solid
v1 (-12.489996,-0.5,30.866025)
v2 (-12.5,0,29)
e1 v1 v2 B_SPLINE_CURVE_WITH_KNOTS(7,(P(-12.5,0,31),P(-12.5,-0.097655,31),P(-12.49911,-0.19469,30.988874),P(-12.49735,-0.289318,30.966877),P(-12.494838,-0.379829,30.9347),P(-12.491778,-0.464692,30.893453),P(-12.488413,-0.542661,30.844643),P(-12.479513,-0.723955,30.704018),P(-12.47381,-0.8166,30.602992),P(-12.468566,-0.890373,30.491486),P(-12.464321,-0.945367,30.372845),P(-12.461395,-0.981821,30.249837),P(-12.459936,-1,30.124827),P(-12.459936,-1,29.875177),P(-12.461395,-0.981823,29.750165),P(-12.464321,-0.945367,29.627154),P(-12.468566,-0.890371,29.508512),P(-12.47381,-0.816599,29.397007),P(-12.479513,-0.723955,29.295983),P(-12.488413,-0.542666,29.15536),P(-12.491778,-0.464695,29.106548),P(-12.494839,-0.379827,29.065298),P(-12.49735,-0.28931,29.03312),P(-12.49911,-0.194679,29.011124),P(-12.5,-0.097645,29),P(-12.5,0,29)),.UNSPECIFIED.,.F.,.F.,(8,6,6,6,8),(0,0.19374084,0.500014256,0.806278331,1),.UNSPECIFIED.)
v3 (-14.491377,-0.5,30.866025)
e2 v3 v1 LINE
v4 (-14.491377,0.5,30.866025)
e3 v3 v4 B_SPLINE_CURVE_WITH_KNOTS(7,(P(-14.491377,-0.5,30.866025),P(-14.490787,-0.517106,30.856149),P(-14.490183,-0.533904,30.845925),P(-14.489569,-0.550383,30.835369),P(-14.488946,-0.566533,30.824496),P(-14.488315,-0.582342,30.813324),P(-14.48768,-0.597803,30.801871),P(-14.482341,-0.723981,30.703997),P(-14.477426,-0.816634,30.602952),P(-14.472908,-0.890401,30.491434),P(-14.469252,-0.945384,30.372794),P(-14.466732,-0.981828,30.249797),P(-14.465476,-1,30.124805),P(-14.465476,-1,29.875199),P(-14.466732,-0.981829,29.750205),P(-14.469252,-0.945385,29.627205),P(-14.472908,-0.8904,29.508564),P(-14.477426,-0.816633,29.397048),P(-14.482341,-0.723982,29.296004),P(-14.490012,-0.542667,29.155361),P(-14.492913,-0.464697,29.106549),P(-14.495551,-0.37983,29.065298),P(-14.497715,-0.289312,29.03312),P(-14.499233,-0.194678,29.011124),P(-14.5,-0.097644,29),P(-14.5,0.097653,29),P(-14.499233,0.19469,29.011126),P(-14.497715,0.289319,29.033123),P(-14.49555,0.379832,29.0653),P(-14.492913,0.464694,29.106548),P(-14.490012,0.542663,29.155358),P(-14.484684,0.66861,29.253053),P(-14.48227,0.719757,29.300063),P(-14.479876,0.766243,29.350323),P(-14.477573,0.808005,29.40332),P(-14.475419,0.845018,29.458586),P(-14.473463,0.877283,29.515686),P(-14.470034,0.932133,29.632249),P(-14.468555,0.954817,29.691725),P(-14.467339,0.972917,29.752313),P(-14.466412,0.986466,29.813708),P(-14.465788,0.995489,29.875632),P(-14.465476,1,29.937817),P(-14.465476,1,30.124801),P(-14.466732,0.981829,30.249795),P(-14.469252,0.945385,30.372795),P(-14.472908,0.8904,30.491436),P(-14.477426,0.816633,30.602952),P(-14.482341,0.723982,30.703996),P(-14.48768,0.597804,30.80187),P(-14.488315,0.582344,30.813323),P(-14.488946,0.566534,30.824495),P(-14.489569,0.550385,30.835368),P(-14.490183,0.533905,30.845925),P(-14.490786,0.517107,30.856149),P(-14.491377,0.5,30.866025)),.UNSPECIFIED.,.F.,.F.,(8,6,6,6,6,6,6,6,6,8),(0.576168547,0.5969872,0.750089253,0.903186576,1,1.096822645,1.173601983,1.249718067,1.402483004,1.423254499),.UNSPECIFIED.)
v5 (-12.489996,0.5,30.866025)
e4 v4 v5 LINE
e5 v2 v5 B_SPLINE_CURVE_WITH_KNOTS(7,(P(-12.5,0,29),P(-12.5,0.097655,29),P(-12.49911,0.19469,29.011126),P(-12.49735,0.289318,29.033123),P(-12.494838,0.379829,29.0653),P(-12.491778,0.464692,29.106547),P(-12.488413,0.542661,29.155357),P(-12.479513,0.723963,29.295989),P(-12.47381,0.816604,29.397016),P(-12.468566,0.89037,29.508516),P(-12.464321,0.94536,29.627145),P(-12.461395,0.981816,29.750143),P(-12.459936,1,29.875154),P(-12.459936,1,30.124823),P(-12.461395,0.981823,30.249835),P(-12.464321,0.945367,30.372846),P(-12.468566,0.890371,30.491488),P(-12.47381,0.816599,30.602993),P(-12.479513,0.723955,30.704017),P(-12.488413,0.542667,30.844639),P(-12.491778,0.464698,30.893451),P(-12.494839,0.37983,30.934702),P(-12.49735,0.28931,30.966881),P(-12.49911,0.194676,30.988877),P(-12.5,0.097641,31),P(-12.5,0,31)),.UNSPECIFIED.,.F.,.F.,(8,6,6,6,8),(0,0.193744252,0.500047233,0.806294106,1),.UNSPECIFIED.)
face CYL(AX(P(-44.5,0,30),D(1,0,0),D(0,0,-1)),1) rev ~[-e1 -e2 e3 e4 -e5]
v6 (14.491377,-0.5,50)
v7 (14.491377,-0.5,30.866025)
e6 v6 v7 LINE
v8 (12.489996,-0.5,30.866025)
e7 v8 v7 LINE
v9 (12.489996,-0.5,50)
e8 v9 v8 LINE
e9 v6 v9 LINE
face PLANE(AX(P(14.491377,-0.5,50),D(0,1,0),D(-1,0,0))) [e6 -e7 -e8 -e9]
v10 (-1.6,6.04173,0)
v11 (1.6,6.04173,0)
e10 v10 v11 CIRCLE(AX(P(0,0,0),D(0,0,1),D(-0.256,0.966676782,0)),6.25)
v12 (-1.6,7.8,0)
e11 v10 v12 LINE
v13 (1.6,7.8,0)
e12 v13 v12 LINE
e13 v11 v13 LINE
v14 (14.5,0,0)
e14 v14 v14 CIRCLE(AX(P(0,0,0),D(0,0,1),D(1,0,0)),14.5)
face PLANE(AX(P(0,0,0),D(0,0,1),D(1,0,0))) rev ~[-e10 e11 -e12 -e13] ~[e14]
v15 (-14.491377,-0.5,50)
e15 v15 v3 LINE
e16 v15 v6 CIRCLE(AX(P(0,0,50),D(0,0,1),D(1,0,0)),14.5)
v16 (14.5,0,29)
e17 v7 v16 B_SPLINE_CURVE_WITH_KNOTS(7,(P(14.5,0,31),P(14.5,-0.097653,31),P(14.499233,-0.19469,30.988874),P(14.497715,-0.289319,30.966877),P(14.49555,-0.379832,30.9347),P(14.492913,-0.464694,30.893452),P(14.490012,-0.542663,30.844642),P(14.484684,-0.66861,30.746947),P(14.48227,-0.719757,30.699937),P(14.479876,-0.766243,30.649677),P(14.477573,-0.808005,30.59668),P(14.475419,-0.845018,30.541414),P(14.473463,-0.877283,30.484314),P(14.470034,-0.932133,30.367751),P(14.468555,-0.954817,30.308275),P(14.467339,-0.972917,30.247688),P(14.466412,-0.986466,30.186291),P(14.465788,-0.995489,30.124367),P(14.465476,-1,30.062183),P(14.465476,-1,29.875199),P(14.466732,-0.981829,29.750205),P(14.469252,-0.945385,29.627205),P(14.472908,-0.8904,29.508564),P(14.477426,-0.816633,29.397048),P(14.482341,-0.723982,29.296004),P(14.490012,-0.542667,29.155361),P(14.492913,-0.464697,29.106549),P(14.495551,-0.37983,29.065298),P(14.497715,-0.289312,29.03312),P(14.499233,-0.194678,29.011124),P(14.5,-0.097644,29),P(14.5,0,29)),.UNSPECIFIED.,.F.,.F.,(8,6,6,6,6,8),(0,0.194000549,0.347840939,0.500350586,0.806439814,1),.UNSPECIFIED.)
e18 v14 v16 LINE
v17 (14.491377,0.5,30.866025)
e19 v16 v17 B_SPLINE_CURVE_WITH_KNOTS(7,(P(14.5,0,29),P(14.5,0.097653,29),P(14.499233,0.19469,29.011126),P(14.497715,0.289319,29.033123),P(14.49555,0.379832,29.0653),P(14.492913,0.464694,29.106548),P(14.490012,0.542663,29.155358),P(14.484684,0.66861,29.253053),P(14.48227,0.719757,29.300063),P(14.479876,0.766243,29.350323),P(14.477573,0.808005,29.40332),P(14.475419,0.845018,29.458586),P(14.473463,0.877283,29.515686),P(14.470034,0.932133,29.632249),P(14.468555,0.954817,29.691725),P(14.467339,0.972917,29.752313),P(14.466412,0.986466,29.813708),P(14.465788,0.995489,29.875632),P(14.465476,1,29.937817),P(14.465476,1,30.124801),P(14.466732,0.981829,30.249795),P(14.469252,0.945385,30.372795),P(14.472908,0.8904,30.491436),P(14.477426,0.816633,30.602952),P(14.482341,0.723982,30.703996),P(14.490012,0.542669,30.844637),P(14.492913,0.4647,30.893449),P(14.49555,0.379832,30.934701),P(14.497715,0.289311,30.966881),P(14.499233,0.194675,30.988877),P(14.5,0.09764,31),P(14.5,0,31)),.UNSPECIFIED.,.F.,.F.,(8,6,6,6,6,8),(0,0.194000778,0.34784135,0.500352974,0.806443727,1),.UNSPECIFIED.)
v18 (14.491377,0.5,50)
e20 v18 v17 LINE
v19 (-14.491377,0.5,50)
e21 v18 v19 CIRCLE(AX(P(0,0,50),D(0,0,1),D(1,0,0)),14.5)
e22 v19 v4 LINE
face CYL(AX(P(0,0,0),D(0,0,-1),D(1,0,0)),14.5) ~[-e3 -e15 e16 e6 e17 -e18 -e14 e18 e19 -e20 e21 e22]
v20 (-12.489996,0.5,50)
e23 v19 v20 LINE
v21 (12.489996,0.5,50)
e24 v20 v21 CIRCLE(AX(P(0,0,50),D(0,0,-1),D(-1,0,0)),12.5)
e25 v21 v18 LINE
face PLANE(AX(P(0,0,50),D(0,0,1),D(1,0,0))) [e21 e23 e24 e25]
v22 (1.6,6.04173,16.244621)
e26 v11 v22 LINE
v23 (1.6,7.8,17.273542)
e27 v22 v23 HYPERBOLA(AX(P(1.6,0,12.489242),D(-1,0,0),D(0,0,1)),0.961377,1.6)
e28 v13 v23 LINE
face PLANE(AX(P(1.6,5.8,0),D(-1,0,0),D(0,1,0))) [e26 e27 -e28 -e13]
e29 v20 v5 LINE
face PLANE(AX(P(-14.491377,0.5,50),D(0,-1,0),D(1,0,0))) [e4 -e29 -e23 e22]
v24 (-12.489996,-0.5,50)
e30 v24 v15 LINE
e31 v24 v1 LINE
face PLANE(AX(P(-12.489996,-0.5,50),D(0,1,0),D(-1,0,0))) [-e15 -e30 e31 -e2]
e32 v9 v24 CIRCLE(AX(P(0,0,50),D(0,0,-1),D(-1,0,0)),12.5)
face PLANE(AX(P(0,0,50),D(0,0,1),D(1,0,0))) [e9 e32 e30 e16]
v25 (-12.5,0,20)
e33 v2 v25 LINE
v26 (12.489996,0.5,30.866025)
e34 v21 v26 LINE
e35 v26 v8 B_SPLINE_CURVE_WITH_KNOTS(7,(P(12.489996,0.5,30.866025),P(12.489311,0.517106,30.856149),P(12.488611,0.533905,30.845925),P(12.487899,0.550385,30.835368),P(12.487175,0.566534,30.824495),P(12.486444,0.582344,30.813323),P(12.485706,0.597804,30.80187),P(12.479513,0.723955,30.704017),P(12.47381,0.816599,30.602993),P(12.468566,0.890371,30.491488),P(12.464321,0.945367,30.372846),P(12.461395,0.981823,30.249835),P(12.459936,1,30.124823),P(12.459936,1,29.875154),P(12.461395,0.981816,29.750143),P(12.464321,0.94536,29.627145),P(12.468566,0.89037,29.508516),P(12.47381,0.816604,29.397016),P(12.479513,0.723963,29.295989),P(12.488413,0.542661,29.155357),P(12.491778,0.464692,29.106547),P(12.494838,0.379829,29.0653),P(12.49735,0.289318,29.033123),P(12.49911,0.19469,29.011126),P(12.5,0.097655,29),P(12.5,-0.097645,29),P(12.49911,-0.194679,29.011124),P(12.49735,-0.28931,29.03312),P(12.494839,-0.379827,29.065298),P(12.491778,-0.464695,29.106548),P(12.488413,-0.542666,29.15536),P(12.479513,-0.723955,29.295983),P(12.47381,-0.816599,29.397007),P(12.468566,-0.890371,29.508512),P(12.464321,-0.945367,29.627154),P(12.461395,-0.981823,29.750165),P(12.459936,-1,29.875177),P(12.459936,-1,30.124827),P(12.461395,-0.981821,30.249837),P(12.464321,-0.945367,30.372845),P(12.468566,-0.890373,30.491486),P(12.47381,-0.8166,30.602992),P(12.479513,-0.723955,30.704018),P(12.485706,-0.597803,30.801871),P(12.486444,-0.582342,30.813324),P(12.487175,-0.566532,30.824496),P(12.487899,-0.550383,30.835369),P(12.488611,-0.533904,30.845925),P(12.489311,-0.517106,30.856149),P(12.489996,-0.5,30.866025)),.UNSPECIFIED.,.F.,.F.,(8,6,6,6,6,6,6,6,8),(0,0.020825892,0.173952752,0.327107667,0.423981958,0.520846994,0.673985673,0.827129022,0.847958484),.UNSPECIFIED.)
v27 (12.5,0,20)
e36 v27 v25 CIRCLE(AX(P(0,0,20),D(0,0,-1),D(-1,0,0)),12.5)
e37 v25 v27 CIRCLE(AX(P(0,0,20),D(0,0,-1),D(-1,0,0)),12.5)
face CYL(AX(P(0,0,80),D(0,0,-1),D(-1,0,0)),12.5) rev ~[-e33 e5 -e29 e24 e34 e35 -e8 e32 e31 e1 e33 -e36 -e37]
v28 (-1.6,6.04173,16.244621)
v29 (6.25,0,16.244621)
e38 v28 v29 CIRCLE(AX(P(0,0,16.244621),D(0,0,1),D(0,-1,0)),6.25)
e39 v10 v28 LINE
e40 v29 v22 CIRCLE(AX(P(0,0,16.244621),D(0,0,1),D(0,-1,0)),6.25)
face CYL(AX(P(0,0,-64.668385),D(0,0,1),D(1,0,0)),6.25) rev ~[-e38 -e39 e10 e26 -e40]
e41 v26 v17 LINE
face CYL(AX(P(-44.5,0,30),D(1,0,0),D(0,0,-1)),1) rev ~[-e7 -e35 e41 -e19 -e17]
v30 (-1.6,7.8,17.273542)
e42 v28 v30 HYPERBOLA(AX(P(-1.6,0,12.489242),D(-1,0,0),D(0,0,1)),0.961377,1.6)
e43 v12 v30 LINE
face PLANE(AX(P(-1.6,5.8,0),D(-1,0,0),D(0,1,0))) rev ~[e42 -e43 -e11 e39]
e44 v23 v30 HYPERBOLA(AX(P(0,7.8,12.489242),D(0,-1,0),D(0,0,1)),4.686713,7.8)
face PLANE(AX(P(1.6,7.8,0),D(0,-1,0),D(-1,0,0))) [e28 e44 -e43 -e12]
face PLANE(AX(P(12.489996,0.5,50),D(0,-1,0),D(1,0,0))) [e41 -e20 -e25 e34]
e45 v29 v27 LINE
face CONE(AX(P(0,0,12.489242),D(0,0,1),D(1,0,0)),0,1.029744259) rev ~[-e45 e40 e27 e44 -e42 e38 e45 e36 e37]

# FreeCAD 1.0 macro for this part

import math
import FreeCAD as App
import Part
import Sketcher
from FreeCAD import Vector
Q = App.Units.Quantity


def add_polygon(sketch, points):
    """Adds a closed chain of lines whose ends are joined by coincident constraints."""
    first, n = sketch.GeometryCount, len(points)
    for a, b in zip(points, points[1:] + points[:1]):
        sketch.addGeometry(Part.LineSegment(App.Vector(*a, 0), App.Vector(*b, 0)), False)
    for i in range(n):
        sketch.addConstraint(Sketcher.Constraint("Coincident", first + i, 2, first + (i + 1) % n, 1))

doc = App.newDocument("Part")
params = doc.addObject("Spreadsheet::Sheet", "Params")
for row, (alias, value) in enumerate([
    ("sketch1_diameter", "29 mm"),
    ("pad1_length", "50 mm"),
    ("sketch2_height", "2 mm"),
    ("sketch2_width", "3.2 mm"),
    ("pocket1_length", "25 mm"),
    ("sketch3_diameter", "12.5 mm"),
    ("hole_diameter", "12.5 mm"),
    ("sketch4_diameter", "25 mm"),
    ("hole2_diameter", "25 mm"),
    ("hole2_depth", "30 mm"),
    ("sketch5_radius", "14.5 mm"),
    ("sketch5_radius2", "12.5 mm"),
    ("pocket2_length", "20 mm"),
    ("sketch6_diameter", "2 mm"),
    ("hole3_diameter", "2 mm"),
    ("hole3_depth", "30 mm"),
], start=1):
    params.set(f"A{row}", alias)
    params.set(f"B{row}", "=" + value)
    params.setAlias(f"B{row}", alias)

body = doc.addObject("PartDesign::Body", "Body")

# Sketch on XY plane
sketch1 = body.newObject("Sketcher::SketchObject", "Sketch")
sketch1.AttachmentSupport = (doc.getObject("XY_Plane"), [""])
sketch1.MapMode = "FlatFace"
sketch1.addGeometry(Part.Circle(Vector(0, 0, 0), Vector(0, 0, 1), 14), False)
sketch1.addConstraint(Sketcher.Constraint("Coincident", 0, 3, -1, 1))
sketch1.addConstraint(Sketcher.Constraint("Diameter", 0, Q("29 mm")))
sketch1.setExpression("Constraints[1]", "Params.sketch1_diameter")
pad1 = body.newObject("PartDesign::Pad", "Pad")
pad1.Profile = sketch1
pad1.setExpression("Length", "Params.pad1_length")

# Sketch on XY plane
sketch2 = body.newObject("Sketcher::SketchObject", "Sketch001")
sketch2.AttachmentSupport = (doc.getObject("XY_Plane"), [""])
sketch2.MapMode = "FlatFace"
add_polygon(sketch2, [(1.6, 7.8), (1.6, 5.8), (-1.6, 5.8), (-1.6, 7.8)])  # lines 0-3
sketch2.addConstraint(Sketcher.Constraint("Vertical", 0))
sketch2.addConstraint(Sketcher.Constraint("Horizontal", 1))
sketch2.addConstraint(Sketcher.Constraint("Vertical", 2))
sketch2.addConstraint(Sketcher.Constraint("Horizontal", 3))
sketch2.addConstraint(Sketcher.Constraint("DistanceY", 0, 2, 0, 1, Q("2 mm")))
sketch2.addConstraint(Sketcher.Constraint("DistanceX", 1, 2, 1, 1, Q("3.2 mm")))
sketch2.addConstraint(Sketcher.Constraint("DistanceX", -1, 1, 0, 2, Q("1.6 mm")))
sketch2.addConstraint(Sketcher.Constraint("DistanceY", -1, 1, 0, 2, Q("5.8 mm")))
sketch2.setExpression("Constraints[8]", "Params.sketch2_height")
sketch2.setExpression("Constraints[9]", "Params.sketch2_width")
pocket1 = body.newObject("PartDesign::Pocket", "Pocket")
pocket1.Profile = sketch2
pocket1.setExpression("Length", "Params.pocket1_length")
pocket1.Reversed = True

# Sketch on XY plane
sketch3 = body.newObject("Sketcher::SketchObject", "Sketch002")
sketch3.AttachmentSupport = (doc.getObject("XY_Plane"), [""])
sketch3.MapMode = "FlatFace"
sketch3.addGeometry(Part.Circle(Vector(0, 0, 0), Vector(0, 0, 1), 6), False)
sketch3.addConstraint(Sketcher.Constraint("Coincident", 0, 3, -1, 1))
sketch3.addConstraint(Sketcher.Constraint("Diameter", 0, Q("12.5 mm")))
sketch3.setExpression("Constraints[1]", "Params.sketch3_diameter")
doc.recompute()
hole = body.newObject("PartDesign::Hole", "Hole")
hole.Profile = sketch3
hole.ThreadType = "None"
hole.setExpression("Diameter", "Params.hole_diameter")
hole.DepthType = "ThroughAll"
hole.Reversed = True

# Sketch on XY plane
sketch4 = body.newObject("Sketcher::SketchObject", "Sketch003")
sketch4.AttachmentSupport = (doc.getObject("XY_Plane"), [""])
sketch4.MapMode = "FlatFace"
sketch4.AttachmentOffset = App.Placement(Vector(0, 0, 50), App.Rotation())
sketch4.addGeometry(Part.Circle(Vector(0, 0, 0), Vector(0, 0, 1), 12), False)
sketch4.addConstraint(Sketcher.Constraint("Coincident", 0, 3, -1, 1))
sketch4.addConstraint(Sketcher.Constraint("Diameter", 0, Q("25 mm")))
sketch4.setExpression("Constraints[1]", "Params.sketch4_diameter")
doc.recompute()
hole2 = body.newObject("PartDesign::Hole", "Hole001")
hole2.Profile = sketch4
hole2.ThreadType = "None"
hole2.setExpression("Diameter", "Params.hole2_diameter")
hole2.DepthType = "Dimension"
hole2.setExpression("Depth", "Params.hole2_depth")
hole2.DrillPoint = "Angled"
hole2.DrillPointAngle = 118

# Sketch on XY plane
sketch5 = body.newObject("Sketcher::SketchObject", "Sketch004")
sketch5.AttachmentSupport = (doc.getObject("XY_Plane"), [""])
sketch5.MapMode = "FlatFace"
sketch5.AttachmentOffset = App.Placement(Vector(0, 0, 50), App.Rotation())
sketch5.addGeometry(Part.LineSegment(Vector(-12.5, 0.5, 0), Vector(-14.5, 0.5, 0)), False)
sketch5.addGeometry(Part.ArcOfCircle(Part.Circle(Vector(0, 0, 0), Vector(0, 0, 1), 14.5), math.radians(178.02), math.radians(181.98)), False)
sketch5.addGeometry(Part.LineSegment(Vector(-14.5, -0.5, 0), Vector(-12.5, -0.5, 0)), False)
sketch5.addGeometry(Part.ArcOfCircle(Part.Circle(Vector(0, 0, 0), Vector(0, 0, 1), 12.5), math.radians(177.71), math.radians(182.29)), False)
sketch5.addGeometry(Part.LineSegment(Vector(14.5, 0.5, 0), Vector(12.5, 0.5, 0)), False)
sketch5.addGeometry(Part.ArcOfCircle(Part.Circle(Vector(0, 0, 0), Vector(0, 0, 1), 12.5), math.radians(-2.29), math.radians(2.29)), False)
sketch5.addGeometry(Part.LineSegment(Vector(12.5, -0.5, 0), Vector(14.5, -0.5, 0)), False)
sketch5.addGeometry(Part.ArcOfCircle(Part.Circle(Vector(0, 0, 0), Vector(0, 0, 1), 14.5), math.radians(-1.98), math.radians(1.98)), False)
sketch5.addConstraint(Sketcher.Constraint("Coincident", 0, 2, 1, 1))
sketch5.addConstraint(Sketcher.Constraint("Coincident", 1, 2, 2, 1))
sketch5.addConstraint(Sketcher.Constraint("Coincident", 2, 2, 3, 2))
sketch5.addConstraint(Sketcher.Constraint("Coincident", 3, 1, 0, 1))
sketch5.addConstraint(Sketcher.Constraint("Coincident", 4, 2, 5, 2))
sketch5.addConstraint(Sketcher.Constraint("Coincident", 5, 1, 6, 1))
sketch5.addConstraint(Sketcher.Constraint("Coincident", 6, 2, 7, 1))
sketch5.addConstraint(Sketcher.Constraint("Coincident", 7, 2, 4, 1))
sketch5.addConstraint(Sketcher.Constraint("Horizontal", 0))
sketch5.addConstraint(Sketcher.Constraint("Horizontal", 2))
sketch5.addConstraint(Sketcher.Constraint("Horizontal", 4))
sketch5.addConstraint(Sketcher.Constraint("Horizontal", 6))
sketch5.addConstraint(Sketcher.Constraint("Coincident", 1, 3, -1, 1))
sketch5.addConstraint(Sketcher.Constraint("Coincident", 3, 3, -1, 1))
sketch5.addConstraint(Sketcher.Constraint("Coincident", 5, 3, -1, 1))
sketch5.addConstraint(Sketcher.Constraint("Coincident", 7, 3, -1, 1))
sketch5.addConstraint(Sketcher.Constraint("Equal", 3, 5))
sketch5.addConstraint(Sketcher.Constraint("Equal", 1, 7))
sketch5.addConstraint(Sketcher.Constraint("Horizontal", 3, 1, 4, 2))
sketch5.addConstraint(Sketcher.Constraint("Horizontal", 2, 2, 5, 1))
sketch5.addConstraint(Sketcher.Constraint("Vertical", 0, 2, 1, 2))
sketch5.addConstraint(Sketcher.Constraint("Radius", 1, Q("14.5 mm")))
sketch5.addConstraint(Sketcher.Constraint("Radius", 3, Q("12.5 mm")))
sketch5.addConstraint(Sketcher.Constraint("DistanceY", 1, 2, 0, 2, Q("1 mm")))
sketch5.setExpression("Constraints[21]", "Params.sketch5_radius")
sketch5.setExpression("Constraints[22]", "Params.sketch5_radius2")
pocket2 = body.newObject("PartDesign::Pocket", "Pocket001")
pocket2.Profile = sketch5
pocket2.setExpression("Length", "Params.pocket2_length")

# Sketch on YZ plane
sketch6 = body.newObject("Sketcher::SketchObject", "Sketch005")
sketch6.AttachmentSupport = (doc.getObject("YZ_Plane"), [""])
sketch6.MapMode = "FlatFace"
sketch6.AttachmentOffset = App.Placement(Vector(0, 0, -14.5), App.Rotation())
sketch6.addGeometry(Part.Circle(Vector(0, 30, 0), Vector(0, 0, 1), 1), False)
sketch6.addConstraint(Sketcher.Constraint("PointOnObject", 0, 3, -2))
sketch6.addConstraint(Sketcher.Constraint("Diameter", 0, Q("2 mm")))
sketch6.addConstraint(Sketcher.Constraint("DistanceY", -1, 1, 0, 3, Q("30 mm")))
sketch6.setExpression("Constraints[1]", "Params.sketch6_diameter")
doc.recompute()
hole3 = body.newObject("PartDesign::Hole", "Hole002")
hole3.Profile = sketch6
hole3.ThreadType = "None"
hole3.setExpression("Diameter", "Params.hole3_diameter")
hole3.DepthType = "Dimension"
hole3.setExpression("Depth", "Params.hole3_depth")
hole3.DrillPoint = "Angled"
hole3.DrillPointAngle = 118
hole3.Reversed = True

doc.recompute()
